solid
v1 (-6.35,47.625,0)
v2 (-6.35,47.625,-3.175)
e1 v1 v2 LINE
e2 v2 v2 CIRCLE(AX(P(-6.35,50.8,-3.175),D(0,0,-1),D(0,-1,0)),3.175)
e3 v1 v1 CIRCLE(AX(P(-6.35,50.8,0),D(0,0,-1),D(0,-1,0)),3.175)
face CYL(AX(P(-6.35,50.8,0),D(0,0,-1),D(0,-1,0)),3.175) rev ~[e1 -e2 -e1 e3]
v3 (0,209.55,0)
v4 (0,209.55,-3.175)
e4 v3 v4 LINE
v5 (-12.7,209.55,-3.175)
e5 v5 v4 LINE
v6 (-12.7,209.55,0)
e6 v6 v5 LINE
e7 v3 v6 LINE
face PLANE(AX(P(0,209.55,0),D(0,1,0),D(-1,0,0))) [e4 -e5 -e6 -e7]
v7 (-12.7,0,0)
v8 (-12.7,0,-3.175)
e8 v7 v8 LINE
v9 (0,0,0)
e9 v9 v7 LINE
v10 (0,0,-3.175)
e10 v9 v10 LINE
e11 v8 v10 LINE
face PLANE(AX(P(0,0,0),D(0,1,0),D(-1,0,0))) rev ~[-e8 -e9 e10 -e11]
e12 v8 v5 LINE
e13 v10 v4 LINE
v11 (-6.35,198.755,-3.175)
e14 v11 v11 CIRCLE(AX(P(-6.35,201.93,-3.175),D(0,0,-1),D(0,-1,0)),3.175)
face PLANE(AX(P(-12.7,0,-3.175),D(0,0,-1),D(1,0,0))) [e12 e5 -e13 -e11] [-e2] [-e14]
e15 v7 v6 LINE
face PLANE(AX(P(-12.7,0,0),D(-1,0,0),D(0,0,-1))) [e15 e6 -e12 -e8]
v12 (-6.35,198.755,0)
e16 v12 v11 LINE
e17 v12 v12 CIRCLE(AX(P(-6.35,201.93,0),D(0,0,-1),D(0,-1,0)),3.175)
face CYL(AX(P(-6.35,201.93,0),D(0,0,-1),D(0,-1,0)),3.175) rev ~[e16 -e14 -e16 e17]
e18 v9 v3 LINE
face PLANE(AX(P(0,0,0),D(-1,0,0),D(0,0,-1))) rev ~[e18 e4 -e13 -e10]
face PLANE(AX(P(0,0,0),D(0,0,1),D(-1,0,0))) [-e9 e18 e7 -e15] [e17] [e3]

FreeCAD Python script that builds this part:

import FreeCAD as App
import Part
import Sketcher

V = App.Vector
Q = App.Units.Quantity

doc = App.newDocument("Part")
body = doc.addObject("PartDesign::Body", "Body")

# Sketch on XZ plane
sketch1 = body.newObject("Sketcher::SketchObject", "Sketch")
sketch1.AttachmentSupport = (doc.getObject("XZ_Plane"), [""])
sketch1.MapMode = "FlatFace"
sketch1.addGeometry([
    Part.LineSegment(V(-12.7, 0, 0), V(0, 0, 0)),
    Part.LineSegment(V(0, 0, 0), V(0, -3.2, 0)),
    Part.LineSegment(V(0, -3.2, 0), V(-12.7, -3.2, 0)),
    Part.LineSegment(V(-12.7, -3.2, 0), V(-12.7, 0, 0)),
], False)
sketch1.addConstraint([
    Sketcher.Constraint("Coincident", 0, 2, 1, 1),
    Sketcher.Constraint("Coincident", 1, 2, 2, 1),
    Sketcher.Constraint("Coincident", 2, 2, 3, 1),
    Sketcher.Constraint("Coincident", 3, 2, 0, 1),
    Sketcher.Constraint("Horizontal", 0),
    Sketcher.Constraint("Vertical", 1),
    Sketcher.Constraint("Horizontal", 2),
    Sketcher.Constraint("Vertical", 3),
    Sketcher.Constraint("Coincident", 0, 2, -1, 1),
    Sketcher.Constraint("DistanceX", 0, 1, 0, 2, Q("0.5 in")),
    Sketcher.Constraint("DistanceY", 1, 2, 1, 1, Q("0.125 in")),
])
pad1 = body.newObject("PartDesign::Pad", "Pad")
pad1.Profile = sketch1
pad1.Length = Q("8.25 in")
pad1.Reversed = True

# Sketch on XY plane
sketch2 = body.newObject("Sketcher::SketchObject", "Sketch001")
sketch2.AttachmentSupport = (doc.getObject("XY_Plane"), [""])
sketch2.MapMode = "FlatFace"
sketch2.addGeometry([
    Part.Circle(V(-6.3, 201.9, 0), V(0, 0, 1), 3.2),
    Part.Circle(V(-6.3, 50.8, 0), V(0, 0, 1), 3.2),
], False)
sketch2.addConstraint([
    Sketcher.Constraint("Equal", 0, 1),
    Sketcher.Constraint("Vertical", 0, 3, 1, 3),
    Sketcher.Constraint("Diameter", 0, Q("0.25 in")),
    Sketcher.Constraint("DistanceY", -1, 1, 1, 3, Q("2 in")),
    Sketcher.Constraint("DistanceX", 0, 3, -1, 1, Q("0.25 in")),
    Sketcher.Constraint("DistanceY", -1, 1, 0, 3, Q("7.95 in")),
])
doc.recompute()
hole = body.newObject("PartDesign::Hole", "Hole")
hole.Profile = sketch2
hole.ThreadType = "None"
hole.Diameter = Q("0.25 in")
hole.DepthType = "ThroughAll"

doc.recompute()
